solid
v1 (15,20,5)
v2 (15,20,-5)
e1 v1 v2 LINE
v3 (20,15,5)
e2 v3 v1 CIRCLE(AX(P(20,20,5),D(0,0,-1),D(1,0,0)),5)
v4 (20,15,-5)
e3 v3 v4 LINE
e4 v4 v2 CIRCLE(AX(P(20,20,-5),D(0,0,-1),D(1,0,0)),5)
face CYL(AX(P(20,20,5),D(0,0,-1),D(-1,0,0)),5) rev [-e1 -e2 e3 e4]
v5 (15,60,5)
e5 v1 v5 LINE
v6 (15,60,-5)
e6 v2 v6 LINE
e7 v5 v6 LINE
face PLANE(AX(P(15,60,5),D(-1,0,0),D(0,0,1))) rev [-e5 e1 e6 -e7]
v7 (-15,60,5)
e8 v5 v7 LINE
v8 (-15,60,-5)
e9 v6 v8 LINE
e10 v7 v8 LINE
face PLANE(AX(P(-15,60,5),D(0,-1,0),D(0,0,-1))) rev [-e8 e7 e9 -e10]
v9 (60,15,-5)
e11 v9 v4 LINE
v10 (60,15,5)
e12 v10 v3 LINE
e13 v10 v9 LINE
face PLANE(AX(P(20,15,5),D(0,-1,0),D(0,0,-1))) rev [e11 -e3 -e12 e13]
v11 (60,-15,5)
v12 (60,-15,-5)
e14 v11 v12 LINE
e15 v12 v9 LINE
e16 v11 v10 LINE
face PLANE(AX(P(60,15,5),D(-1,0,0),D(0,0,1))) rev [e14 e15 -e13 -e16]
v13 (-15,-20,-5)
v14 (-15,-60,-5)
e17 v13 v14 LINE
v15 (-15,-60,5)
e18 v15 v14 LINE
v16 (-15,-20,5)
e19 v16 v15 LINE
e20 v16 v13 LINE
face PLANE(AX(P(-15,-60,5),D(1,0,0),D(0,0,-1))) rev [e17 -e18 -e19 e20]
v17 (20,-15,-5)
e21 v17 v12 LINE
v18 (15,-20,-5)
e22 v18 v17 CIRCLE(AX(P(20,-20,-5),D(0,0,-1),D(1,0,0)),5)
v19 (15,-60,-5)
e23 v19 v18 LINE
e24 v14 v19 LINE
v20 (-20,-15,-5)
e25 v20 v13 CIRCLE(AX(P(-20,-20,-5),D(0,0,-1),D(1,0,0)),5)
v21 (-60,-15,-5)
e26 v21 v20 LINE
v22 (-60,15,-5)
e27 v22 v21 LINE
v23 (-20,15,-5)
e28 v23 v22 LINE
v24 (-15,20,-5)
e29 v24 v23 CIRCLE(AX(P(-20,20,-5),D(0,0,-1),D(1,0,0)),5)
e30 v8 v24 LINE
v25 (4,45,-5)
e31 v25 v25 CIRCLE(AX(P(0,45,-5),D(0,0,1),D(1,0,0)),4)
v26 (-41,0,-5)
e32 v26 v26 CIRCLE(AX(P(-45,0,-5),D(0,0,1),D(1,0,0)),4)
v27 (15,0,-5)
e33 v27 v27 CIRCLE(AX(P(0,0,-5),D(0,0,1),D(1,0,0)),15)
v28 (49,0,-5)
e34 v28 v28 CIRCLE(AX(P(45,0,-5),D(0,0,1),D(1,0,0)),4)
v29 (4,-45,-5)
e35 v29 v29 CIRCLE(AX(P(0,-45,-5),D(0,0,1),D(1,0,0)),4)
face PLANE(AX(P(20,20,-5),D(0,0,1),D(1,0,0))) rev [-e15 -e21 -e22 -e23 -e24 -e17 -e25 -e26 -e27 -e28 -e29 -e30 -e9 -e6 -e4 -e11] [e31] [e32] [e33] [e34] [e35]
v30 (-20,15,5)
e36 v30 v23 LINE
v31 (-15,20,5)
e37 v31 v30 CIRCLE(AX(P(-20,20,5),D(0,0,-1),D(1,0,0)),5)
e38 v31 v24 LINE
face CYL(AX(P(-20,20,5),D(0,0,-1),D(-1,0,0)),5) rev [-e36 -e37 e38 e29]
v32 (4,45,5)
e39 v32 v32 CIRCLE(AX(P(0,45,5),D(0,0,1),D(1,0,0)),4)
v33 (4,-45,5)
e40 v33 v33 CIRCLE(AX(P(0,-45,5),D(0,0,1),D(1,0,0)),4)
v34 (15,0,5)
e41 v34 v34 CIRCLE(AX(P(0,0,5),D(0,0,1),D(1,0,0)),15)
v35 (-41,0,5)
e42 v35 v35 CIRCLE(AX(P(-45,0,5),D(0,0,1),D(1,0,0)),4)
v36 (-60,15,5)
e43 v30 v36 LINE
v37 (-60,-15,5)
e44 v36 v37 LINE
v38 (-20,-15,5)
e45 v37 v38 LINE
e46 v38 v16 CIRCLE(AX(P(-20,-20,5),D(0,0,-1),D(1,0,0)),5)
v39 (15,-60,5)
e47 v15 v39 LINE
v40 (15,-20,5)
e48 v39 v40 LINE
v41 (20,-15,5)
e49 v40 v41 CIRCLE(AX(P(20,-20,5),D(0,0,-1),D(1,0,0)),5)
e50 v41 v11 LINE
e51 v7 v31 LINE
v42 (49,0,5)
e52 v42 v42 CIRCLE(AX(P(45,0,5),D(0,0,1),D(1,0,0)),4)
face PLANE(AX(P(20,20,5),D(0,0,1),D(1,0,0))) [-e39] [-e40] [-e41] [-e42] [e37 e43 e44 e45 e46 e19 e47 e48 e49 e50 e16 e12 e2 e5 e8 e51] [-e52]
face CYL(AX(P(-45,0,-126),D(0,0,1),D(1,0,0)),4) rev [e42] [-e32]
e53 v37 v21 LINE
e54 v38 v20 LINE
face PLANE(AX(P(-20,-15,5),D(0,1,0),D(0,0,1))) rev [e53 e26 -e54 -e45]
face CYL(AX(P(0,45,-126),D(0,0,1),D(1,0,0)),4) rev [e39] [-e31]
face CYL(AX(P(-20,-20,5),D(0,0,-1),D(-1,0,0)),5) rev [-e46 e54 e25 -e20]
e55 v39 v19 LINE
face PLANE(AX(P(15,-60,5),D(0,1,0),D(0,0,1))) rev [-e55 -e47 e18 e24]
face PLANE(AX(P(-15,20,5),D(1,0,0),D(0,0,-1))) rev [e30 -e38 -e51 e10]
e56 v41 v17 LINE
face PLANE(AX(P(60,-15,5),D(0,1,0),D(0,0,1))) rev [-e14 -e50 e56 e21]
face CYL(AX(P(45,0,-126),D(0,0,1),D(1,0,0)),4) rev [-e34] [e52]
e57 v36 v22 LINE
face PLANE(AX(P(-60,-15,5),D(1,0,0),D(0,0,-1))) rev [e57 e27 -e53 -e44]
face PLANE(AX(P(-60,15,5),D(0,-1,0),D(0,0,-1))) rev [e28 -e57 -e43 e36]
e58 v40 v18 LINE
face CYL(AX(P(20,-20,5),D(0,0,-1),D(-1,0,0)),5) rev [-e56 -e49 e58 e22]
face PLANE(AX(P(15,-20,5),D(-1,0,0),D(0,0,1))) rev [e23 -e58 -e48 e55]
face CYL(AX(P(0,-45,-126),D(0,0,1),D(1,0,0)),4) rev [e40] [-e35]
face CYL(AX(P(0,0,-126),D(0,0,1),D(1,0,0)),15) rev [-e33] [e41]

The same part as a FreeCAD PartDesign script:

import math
import FreeCAD as App
import Part
import Sketcher

doc = App.newDocument("Part")
body = doc.addObject("PartDesign::Body", "Body")

# Sketch on XY plane
sketch1 = body.newObject("Sketcher::SketchObject", "Sketch")
sketch1.AttachmentSupport = (doc.getObject("XY_Plane"), [""])
sketch1.MapMode = "FlatFace"
sketch1.AttachmentOffset = App.Placement(App.Vector(0, 0, -5), App.Rotation())
sketch1.addGeometry(Part.LineSegment(App.Vector(15, 60, 0), App.Vector(-15, 60, 0)), False)
sketch1.addGeometry(Part.LineSegment(App.Vector(-15, 60, 0), App.Vector(-15, 20, 0)), False)
sketch1.addGeometry(Part.ArcOfCircle(Part.Circle(App.Vector(-20, 20, 0), App.Vector(0, 0, 1), 5), math.radians(-90), math.radians(0)), False)
sketch1.addGeometry(Part.LineSegment(App.Vector(-20, 15, 0), App.Vector(-60, 15, 0)), False)
sketch1.addGeometry(Part.LineSegment(App.Vector(-60, 15, 0), App.Vector(-60, -15, 0)), False)
sketch1.addGeometry(Part.LineSegment(App.Vector(-60, -15, 0), App.Vector(-20, -15, 0)), False)
sketch1.addGeometry(Part.ArcOfCircle(Part.Circle(App.Vector(-20, -20, 0), App.Vector(0, 0, 1), 5), math.radians(0), math.radians(90)), False)
sketch1.addGeometry(Part.LineSegment(App.Vector(-15, -20, 0), App.Vector(-15, -60, 0)), False)
sketch1.addGeometry(Part.LineSegment(App.Vector(-15, -60, 0), App.Vector(15, -60, 0)), False)
sketch1.addGeometry(Part.LineSegment(App.Vector(15, -60, 0), App.Vector(15, -20, 0)), False)
sketch1.addGeometry(Part.ArcOfCircle(Part.Circle(App.Vector(20, -20, 0), App.Vector(0, 0, 1), 5), math.radians(90), math.radians(180)), False)
sketch1.addGeometry(Part.LineSegment(App.Vector(20, -15, 0), App.Vector(60, -15, 0)), False)
sketch1.addGeometry(Part.LineSegment(App.Vector(60, -15, 0), App.Vector(60, 15, 0)), False)
sketch1.addGeometry(Part.LineSegment(App.Vector(60, 15, 0), App.Vector(20, 15, 0)), False)
sketch1.addGeometry(Part.ArcOfCircle(Part.Circle(App.Vector(20, 20, 0), App.Vector(0, 0, 1), 5), math.radians(180), math.radians(270)), False)
sketch1.addGeometry(Part.LineSegment(App.Vector(15, 20, 0), App.Vector(15, 60, 0)), False)
sketch1.addConstraint(Sketcher.Constraint("Coincident", 0, 2, 1, 1))
sketch1.addConstraint(Sketcher.Constraint("Tangent", 1, 2, 2, 2))
sketch1.addConstraint(Sketcher.Constraint("Tangent", 2, 1, 3, 1))
sketch1.addConstraint(Sketcher.Constraint("Coincident", 3, 2, 4, 1))
sketch1.addConstraint(Sketcher.Constraint("Coincident", 4, 2, 5, 1))
sketch1.addConstraint(Sketcher.Constraint("Tangent", 5, 2, 6, 2))
sketch1.addConstraint(Sketcher.Constraint("Tangent", 6, 1, 7, 1))
sketch1.addConstraint(Sketcher.Constraint("Coincident", 7, 2, 8, 1))
sketch1.addConstraint(Sketcher.Constraint("Coincident", 8, 2, 9, 1))
sketch1.addConstraint(Sketcher.Constraint("Tangent", 9, 2, 10, 2))
sketch1.addConstraint(Sketcher.Constraint("Tangent", 10, 1, 11, 1))
sketch1.addConstraint(Sketcher.Constraint("Coincident", 11, 2, 12, 1))
sketch1.addConstraint(Sketcher.Constraint("Coincident", 12, 2, 13, 1))
sketch1.addConstraint(Sketcher.Constraint("Tangent", 13, 2, 14, 2))
sketch1.addConstraint(Sketcher.Constraint("Tangent", 14, 1, 15, 1))
sketch1.addConstraint(Sketcher.Constraint("Coincident", 15, 2, 0, 1))
sketch1.addConstraint(Sketcher.Constraint("Horizontal", 0))
sketch1.addConstraint(Sketcher.Constraint("Vertical", 1))
sketch1.addConstraint(Sketcher.Constraint("Horizontal", 3))
sketch1.addConstraint(Sketcher.Constraint("Vertical", 4))
sketch1.addConstraint(Sketcher.Constraint("Horizontal", 5))
sketch1.addConstraint(Sketcher.Constraint("Vertical", 7))
sketch1.addConstraint(Sketcher.Constraint("Horizontal", 8))
sketch1.addConstraint(Sketcher.Constraint("Vertical", 9))
sketch1.addConstraint(Sketcher.Constraint("Horizontal", 11))
sketch1.addConstraint(Sketcher.Constraint("Vertical", 12))
sketch1.addConstraint(Sketcher.Constraint("Horizontal", 13))
sketch1.addConstraint(Sketcher.Constraint("Vertical", 15))
sketch1.addConstraint(Sketcher.Constraint("Equal", 2, 6))
sketch1.addConstraint(Sketcher.Constraint("Equal", 6, 10))
sketch1.addConstraint(Sketcher.Constraint("Equal", 10, 14))
sketch1.addConstraint(Sketcher.Constraint("Symmetric", 2, 3, 10, 3, -1, 1))
sketch1.addConstraint(Sketcher.Constraint("Symmetric", 6, 3, 14, 3, -1, 1))
sketch1.addConstraint(Sketcher.Constraint("Symmetric", 6, 3, 10, 3, -2))
sketch1.addConstraint(Sketcher.Constraint("Equal", 5, 11))
sketch1.addConstraint(Sketcher.Constraint("Equal", 13, 1))
sketch1.addConstraint(Sketcher.Constraint("Equal", 8, 4))
sketch1.addConstraint(Sketcher.Constraint("Equal", 1, 7))
sketch1.addConstraint(Sketcher.Constraint("Radius", 2, 5.0))
sketch1.addConstraint(Sketcher.Constraint("DistanceX", 0, 2, 0, 1, 30.0))
sketch1.addConstraint(Sketcher.Constraint("DistanceX", 3, 2, 3, 1, 40.0))
pad1 = body.newObject("PartDesign::Pad", "Pad")
pad1.Profile = sketch1
pad1.Length = 10

# Sketch on XY plane
sketch2 = body.newObject("Sketcher::SketchObject", "Sketch001")
sketch2.AttachmentSupport = (doc.getObject("XY_Plane"), [""])
sketch2.MapMode = "FlatFace"
sketch2.AttachmentOffset = App.Placement(App.Vector(0, 0, -5), App.Rotation())
sketch2.addGeometry(Part.Circle(App.Vector(0, 0, 0), App.Vector(0, 0, 1), 15), False)
sketch2.addConstraint(Sketcher.Constraint("Coincident", 0, 3, -1, 1))
sketch2.addConstraint(Sketcher.Constraint("Diameter", 0, 30.0))
pocket1 = body.newObject("PartDesign::Pocket", "Pocket")
pocket1.Profile = sketch2
pocket1.Length = 242
pocket1.Midplane = True

# Sketch on XY plane
sketch3 = body.newObject("Sketcher::SketchObject", "Sketch002")
sketch3.AttachmentSupport = (doc.getObject("XY_Plane"), [""])
sketch3.MapMode = "FlatFace"
sketch3.AttachmentOffset = App.Placement(App.Vector(0, 0, -5), App.Rotation())
sketch3.addGeometry(Part.Circle(App.Vector(45, 0, 0), App.Vector(0, 0, 1), 4), False)
sketch3.addGeometry(Part.Circle(App.Vector(-45, 0, 0), App.Vector(0, 0, 1), 4), False)
sketch3.addGeometry(Part.Circle(App.Vector(0, 45, 0), App.Vector(0, 0, 1), 4), False)
sketch3.addGeometry(Part.Circle(App.Vector(0, -45, 0), App.Vector(0, 0, 1), 4), False)
sketch3.addConstraint(Sketcher.Constraint("Equal", 0, 1))
sketch3.addConstraint(Sketcher.Constraint("Equal", 1, 2))
sketch3.addConstraint(Sketcher.Constraint("Equal", 2, 3))
sketch3.addConstraint(Sketcher.Constraint("Symmetric", 0, 3, 1, 3, -1, 1))
sketch3.addConstraint(Sketcher.Constraint("Symmetric", 2, 3, 3, 3, -1, 1))
sketch3.addConstraint(Sketcher.Constraint("PointOnObject", 0, 3, -1))
sketch3.addConstraint(Sketcher.Constraint("PointOnObject", 2, 3, -2))
sketch3.addConstraint(Sketcher.Constraint("Diameter", 0, 8.0))
sketch3.addConstraint(Sketcher.Constraint("DistanceX", -1, 1, 0, 3, 45.0))
sketch3.addConstraint(Sketcher.Constraint("DistanceY", -1, 1, 2, 3, 45.0))
pocket2 = body.newObject("PartDesign::Pocket", "Pocket001")
pocket2.Profile = sketch3
pocket2.Length = 242
pocket2.Midplane = True

doc.recompute()
